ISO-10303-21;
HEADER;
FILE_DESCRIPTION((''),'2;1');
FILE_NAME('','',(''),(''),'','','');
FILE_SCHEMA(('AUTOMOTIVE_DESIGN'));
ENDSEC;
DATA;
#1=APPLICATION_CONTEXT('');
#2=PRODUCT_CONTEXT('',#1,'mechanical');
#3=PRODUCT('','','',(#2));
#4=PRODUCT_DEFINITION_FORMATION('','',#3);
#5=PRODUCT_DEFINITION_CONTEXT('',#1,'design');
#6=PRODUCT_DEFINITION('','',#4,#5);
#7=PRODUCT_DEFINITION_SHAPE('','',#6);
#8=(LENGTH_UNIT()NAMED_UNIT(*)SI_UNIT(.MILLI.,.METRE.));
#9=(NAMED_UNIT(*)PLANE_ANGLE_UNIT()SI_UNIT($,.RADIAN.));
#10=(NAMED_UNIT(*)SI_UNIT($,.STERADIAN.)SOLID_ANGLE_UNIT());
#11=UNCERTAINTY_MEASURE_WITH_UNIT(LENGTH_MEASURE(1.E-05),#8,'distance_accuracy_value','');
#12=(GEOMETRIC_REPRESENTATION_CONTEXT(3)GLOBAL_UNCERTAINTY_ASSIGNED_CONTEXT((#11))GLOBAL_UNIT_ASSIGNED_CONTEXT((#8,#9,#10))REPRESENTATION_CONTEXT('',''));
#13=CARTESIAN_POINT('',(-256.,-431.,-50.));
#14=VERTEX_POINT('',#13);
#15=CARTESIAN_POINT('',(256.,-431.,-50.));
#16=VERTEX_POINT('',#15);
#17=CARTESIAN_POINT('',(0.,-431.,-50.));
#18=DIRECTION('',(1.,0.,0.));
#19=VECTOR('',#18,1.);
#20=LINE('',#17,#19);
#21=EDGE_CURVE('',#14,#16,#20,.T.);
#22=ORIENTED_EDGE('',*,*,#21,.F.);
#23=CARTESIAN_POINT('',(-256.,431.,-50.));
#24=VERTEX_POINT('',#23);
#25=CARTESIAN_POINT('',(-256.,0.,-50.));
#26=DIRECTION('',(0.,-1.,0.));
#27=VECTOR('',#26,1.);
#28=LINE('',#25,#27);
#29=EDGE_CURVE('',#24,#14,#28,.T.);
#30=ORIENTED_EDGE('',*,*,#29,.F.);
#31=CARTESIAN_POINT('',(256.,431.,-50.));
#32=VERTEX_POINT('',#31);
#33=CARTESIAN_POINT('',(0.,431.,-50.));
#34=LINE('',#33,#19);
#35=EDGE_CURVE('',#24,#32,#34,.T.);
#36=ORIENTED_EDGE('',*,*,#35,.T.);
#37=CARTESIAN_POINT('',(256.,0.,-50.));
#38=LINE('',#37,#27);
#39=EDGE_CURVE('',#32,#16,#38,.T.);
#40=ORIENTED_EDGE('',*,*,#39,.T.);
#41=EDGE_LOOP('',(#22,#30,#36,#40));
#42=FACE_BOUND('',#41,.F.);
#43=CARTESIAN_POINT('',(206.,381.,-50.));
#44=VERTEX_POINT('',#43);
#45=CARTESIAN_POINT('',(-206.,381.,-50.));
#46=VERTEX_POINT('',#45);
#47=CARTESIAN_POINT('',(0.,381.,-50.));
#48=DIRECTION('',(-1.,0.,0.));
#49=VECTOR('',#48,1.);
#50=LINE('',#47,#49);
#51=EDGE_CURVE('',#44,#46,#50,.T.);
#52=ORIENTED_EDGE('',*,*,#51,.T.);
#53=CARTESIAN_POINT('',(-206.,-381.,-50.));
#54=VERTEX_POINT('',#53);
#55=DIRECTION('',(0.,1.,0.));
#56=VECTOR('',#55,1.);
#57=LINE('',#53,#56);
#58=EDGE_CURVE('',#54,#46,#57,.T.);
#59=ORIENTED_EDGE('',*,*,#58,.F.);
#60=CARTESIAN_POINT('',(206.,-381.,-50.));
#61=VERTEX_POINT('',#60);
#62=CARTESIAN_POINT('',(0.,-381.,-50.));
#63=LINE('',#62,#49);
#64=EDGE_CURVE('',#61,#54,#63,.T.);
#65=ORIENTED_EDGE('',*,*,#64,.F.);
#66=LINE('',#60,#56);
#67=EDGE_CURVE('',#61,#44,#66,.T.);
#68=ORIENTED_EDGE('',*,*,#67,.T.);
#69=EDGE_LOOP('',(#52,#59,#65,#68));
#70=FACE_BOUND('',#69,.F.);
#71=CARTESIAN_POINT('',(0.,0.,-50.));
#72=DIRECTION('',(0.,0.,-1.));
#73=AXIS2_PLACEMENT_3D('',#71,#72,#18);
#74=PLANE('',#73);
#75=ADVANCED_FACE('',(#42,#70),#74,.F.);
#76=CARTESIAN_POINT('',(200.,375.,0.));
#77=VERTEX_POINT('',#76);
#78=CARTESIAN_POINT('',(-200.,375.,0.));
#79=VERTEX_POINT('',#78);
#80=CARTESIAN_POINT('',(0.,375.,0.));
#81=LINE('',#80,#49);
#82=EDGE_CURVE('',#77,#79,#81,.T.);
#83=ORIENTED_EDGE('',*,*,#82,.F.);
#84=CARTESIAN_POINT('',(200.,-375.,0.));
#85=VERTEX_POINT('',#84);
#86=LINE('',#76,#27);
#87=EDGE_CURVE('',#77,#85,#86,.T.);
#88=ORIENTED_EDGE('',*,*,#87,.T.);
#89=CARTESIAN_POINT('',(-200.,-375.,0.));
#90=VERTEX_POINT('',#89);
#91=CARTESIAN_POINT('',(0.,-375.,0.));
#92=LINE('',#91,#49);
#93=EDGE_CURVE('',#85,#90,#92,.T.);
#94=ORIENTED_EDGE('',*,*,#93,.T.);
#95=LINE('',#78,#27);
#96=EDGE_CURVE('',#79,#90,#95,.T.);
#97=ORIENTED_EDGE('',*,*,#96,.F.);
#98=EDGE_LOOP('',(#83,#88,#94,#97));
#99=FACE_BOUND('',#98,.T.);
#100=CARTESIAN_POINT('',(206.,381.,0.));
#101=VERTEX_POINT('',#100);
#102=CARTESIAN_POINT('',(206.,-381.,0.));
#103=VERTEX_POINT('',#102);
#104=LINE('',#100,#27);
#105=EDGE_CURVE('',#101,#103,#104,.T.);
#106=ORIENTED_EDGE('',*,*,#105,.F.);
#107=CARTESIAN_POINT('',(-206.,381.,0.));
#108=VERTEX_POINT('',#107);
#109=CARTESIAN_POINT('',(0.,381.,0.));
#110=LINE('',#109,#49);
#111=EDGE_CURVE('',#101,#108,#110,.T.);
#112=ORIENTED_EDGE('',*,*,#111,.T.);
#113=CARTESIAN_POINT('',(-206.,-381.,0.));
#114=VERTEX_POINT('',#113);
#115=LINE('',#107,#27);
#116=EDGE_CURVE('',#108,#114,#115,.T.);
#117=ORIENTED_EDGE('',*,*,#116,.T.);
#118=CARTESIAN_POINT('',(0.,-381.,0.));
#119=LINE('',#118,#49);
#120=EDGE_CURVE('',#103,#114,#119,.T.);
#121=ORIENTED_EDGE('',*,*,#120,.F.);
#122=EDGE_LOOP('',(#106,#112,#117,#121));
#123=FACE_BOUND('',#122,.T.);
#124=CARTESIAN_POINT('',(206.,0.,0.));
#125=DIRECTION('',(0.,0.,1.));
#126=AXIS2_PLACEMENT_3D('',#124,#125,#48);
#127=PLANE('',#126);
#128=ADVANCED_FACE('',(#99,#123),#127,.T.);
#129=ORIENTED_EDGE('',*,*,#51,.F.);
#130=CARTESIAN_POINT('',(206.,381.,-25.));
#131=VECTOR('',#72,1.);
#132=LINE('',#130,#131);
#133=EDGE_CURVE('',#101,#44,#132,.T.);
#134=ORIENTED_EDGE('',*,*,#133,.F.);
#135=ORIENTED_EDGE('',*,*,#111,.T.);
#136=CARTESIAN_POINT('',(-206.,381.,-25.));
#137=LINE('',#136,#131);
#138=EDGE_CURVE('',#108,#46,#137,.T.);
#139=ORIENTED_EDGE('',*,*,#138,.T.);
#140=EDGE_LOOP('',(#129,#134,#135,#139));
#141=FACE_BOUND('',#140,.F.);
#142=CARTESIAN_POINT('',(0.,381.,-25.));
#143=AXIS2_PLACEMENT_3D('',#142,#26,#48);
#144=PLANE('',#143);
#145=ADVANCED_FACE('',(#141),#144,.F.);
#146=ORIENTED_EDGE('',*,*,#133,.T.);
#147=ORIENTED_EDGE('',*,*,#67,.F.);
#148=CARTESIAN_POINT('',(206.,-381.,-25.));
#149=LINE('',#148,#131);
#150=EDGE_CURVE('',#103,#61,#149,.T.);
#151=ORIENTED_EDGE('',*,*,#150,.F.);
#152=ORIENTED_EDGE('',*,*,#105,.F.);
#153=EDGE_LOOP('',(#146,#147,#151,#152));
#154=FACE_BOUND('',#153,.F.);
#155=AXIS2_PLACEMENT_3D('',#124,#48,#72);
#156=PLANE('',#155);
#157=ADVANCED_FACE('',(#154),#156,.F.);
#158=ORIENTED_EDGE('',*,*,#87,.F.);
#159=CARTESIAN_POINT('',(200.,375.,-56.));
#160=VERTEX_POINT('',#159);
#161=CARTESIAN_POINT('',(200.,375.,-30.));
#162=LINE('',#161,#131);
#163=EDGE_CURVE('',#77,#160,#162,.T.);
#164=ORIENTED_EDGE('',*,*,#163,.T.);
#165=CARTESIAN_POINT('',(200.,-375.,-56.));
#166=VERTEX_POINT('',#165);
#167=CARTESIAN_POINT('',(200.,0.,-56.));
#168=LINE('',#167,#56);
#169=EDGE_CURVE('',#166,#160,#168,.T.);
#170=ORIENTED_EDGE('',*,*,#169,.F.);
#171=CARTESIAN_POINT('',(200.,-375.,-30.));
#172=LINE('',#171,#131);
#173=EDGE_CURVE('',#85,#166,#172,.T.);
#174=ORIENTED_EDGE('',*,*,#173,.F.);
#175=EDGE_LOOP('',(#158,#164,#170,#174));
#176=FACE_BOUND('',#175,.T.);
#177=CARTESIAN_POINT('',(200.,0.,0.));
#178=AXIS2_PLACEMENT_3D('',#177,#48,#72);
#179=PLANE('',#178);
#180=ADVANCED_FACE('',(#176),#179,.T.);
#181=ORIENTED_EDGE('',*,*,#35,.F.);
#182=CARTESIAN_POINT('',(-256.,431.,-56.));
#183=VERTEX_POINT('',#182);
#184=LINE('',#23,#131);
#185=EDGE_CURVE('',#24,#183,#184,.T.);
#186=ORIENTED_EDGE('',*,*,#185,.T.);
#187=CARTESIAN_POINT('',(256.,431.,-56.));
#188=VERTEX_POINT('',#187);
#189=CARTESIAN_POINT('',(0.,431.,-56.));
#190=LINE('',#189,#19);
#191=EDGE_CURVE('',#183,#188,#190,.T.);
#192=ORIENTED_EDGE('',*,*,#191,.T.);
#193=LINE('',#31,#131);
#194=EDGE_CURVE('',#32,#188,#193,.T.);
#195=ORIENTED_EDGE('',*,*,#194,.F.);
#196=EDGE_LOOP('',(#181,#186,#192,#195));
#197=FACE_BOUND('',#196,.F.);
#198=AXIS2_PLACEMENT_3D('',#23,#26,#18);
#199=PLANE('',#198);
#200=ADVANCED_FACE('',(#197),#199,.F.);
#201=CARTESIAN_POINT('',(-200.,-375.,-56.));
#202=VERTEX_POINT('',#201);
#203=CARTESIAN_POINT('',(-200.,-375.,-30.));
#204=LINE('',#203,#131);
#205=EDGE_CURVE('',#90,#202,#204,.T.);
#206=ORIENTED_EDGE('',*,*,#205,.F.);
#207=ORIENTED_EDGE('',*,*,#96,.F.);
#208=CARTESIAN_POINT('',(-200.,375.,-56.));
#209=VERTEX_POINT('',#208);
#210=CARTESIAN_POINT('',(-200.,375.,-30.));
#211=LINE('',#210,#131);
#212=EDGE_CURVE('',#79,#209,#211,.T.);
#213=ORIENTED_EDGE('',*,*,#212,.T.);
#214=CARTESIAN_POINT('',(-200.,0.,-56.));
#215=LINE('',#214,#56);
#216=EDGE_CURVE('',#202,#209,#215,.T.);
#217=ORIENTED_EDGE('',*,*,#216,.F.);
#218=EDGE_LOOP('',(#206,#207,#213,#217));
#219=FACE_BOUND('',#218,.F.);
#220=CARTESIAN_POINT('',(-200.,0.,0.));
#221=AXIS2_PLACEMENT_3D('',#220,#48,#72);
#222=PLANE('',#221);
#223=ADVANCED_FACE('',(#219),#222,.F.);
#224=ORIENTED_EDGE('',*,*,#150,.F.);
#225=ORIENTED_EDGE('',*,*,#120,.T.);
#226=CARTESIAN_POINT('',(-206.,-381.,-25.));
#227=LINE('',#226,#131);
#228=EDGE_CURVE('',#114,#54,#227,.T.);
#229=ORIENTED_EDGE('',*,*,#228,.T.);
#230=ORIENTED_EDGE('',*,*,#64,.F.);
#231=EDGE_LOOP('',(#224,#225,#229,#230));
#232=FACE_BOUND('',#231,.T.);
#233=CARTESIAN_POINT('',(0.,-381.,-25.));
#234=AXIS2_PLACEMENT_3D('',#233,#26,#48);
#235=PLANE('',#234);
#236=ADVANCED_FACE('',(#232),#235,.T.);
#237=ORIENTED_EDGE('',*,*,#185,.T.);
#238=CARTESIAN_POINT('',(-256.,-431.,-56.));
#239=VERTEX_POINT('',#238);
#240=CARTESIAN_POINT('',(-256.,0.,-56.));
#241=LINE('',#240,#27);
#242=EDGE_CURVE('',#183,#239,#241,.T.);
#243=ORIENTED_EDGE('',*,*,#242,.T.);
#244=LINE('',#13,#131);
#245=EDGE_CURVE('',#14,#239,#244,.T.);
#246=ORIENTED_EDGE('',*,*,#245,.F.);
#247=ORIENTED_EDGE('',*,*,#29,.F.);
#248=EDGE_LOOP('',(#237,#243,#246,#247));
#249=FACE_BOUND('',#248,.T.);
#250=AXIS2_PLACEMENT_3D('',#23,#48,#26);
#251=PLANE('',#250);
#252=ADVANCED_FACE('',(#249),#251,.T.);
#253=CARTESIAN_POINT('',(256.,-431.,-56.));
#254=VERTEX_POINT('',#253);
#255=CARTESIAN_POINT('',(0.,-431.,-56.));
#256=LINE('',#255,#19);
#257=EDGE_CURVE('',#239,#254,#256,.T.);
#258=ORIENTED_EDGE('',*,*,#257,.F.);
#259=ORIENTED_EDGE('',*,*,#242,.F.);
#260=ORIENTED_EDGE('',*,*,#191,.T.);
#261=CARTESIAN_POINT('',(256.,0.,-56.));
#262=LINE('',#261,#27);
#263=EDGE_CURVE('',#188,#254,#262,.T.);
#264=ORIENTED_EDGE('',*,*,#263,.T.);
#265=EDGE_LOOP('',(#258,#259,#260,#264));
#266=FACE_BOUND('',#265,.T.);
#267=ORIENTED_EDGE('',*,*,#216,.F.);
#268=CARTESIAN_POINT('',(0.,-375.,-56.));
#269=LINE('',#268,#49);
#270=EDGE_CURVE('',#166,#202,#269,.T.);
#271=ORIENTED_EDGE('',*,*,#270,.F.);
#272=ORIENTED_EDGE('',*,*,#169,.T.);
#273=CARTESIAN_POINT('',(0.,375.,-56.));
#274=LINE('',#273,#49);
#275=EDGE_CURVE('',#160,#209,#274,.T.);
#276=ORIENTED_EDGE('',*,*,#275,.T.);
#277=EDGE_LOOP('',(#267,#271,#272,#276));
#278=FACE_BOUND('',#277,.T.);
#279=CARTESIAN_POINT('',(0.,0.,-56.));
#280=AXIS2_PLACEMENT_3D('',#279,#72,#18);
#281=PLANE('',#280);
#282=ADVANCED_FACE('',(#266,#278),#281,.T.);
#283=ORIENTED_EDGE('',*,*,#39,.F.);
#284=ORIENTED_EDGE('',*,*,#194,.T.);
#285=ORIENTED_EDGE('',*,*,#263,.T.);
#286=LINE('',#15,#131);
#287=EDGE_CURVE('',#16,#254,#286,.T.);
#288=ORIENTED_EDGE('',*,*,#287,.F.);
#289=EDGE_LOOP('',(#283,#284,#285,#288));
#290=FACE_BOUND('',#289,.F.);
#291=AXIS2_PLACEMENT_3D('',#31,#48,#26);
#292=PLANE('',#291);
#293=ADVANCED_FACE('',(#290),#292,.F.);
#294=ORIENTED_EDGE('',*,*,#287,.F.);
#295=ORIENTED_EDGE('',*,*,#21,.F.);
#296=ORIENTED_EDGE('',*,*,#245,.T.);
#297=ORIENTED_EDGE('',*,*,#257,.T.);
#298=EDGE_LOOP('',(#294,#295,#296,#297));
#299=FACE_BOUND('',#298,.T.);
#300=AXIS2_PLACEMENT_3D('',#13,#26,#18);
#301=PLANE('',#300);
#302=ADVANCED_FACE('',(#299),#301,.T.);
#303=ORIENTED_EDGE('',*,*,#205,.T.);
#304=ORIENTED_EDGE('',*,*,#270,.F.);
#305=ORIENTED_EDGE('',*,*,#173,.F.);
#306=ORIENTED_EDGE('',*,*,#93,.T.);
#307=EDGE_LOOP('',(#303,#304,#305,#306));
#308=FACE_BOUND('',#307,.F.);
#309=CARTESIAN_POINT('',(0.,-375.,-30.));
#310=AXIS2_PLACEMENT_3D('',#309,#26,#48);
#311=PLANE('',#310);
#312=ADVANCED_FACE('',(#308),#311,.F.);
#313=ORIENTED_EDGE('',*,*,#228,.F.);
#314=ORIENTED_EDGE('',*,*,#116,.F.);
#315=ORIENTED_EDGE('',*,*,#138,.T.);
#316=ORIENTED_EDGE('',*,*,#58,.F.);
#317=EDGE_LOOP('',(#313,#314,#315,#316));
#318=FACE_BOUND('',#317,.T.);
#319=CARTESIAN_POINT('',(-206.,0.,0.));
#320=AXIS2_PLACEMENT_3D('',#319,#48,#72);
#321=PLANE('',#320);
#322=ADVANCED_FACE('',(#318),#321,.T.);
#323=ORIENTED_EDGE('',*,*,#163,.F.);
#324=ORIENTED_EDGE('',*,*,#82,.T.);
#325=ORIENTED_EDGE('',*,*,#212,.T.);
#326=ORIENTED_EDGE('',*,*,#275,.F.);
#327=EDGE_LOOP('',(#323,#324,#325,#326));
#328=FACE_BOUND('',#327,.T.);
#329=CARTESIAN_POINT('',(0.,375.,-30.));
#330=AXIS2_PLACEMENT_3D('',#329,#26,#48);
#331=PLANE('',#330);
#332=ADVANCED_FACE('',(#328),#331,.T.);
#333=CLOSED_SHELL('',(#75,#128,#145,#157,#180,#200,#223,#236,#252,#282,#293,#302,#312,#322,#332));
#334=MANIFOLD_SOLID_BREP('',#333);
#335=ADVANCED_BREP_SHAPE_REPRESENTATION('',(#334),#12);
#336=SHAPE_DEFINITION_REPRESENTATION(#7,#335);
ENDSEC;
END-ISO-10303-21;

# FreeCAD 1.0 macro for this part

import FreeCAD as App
import Part
import Sketcher
Q = App.Units.Quantity

doc = App.newDocument("Part")
params = doc.addObject("Spreadsheet::Sheet", "Params")
for row, (alias, value) in enumerate([
    ("sketch1_width", "400 mm"),
    ("sketch1_height", "60 mm"),
    ("pad1_length", "750 mm"),
    ("sketch2_width", "412 mm"),
    ("sketch2_height", "50 mm"),
    ("pad2_length", "762 mm"),
    ("sketch3_width", "512 mm"),
    ("sketch3_height", "862 mm"),
    ("pad3_length", "6 mm"),
], start=1):
    params.set(f"A{row}", alias)
    params.set(f"B{row}", "=" + value)
    params.setAlias(f"B{row}", alias)

body = doc.addObject("PartDesign::Body", "Body")

sketch1 = body.newObject("Sketcher::SketchObject", "Sketch")
sketch1.AttachmentSupport = (doc.getObject("XZ_Plane"), [""])
sketch1.MapMode = "FlatFace"
sketch1.addGeometry([
    Part.LineSegment(App.Vector(-200, 60, 0), App.Vector(-200, 0, 0)),
    Part.LineSegment(App.Vector(-200, 0, 0), App.Vector(200, 0, 0)),
    Part.LineSegment(App.Vector(200, 0, 0), App.Vector(200, 60, 0)),
    Part.LineSegment(App.Vector(200, 60, 0), App.Vector(-200, 60, 0)),
], False)
sketch1.addConstraint([
    Sketcher.Constraint("Coincident", 0, 2, 1, 1),
    Sketcher.Constraint("Coincident", 1, 2, 2, 1),
    Sketcher.Constraint("Coincident", 2, 2, 3, 1),
    Sketcher.Constraint("Coincident", 3, 2, 0, 1),
    Sketcher.Constraint("Vertical", 0),
    Sketcher.Constraint("Horizontal", 1),
    Sketcher.Constraint("Vertical", 2),
    Sketcher.Constraint("Horizontal", 3),
    Sketcher.Constraint("Symmetric", 0, 2, 1, 2, -1, 1),
    Sketcher.Constraint("DistanceX", 1, 1, 1, 2, Q("400 mm")),
    Sketcher.Constraint("DistanceY", 0, 2, 0, 1, Q("60 mm")),
])
sketch1.setExpression("Constraints[9]", "Params.sketch1_width")
sketch1.setExpression("Constraints[10]", "Params.sketch1_height")
pad1 = body.newObject("PartDesign::Pad", "Pad")
pad1.Profile = sketch1
pad1.setExpression("Length", "Params.pad1_length")
pad1.Midplane = True
body2 = doc.addObject("PartDesign::Body", "Body001")

sketch2 = body2.newObject("Sketcher::SketchObject", "Sketch001")
sketch2.AttachmentSupport = (doc.getObject("XZ_Plane001"), [""])
sketch2.MapMode = "FlatFace"
sketch2.addGeometry([
    Part.LineSegment(App.Vector(-206, 50, 0), App.Vector(-206, 0, 0)),
    Part.LineSegment(App.Vector(-206, 0, 0), App.Vector(206, 0, 0)),
    Part.LineSegment(App.Vector(206, 0, 0), App.Vector(206, 50, 0)),
    Part.LineSegment(App.Vector(206, 50, 0), App.Vector(-206, 50, 0)),
], False)
sketch2.addConstraint([
    Sketcher.Constraint("Coincident", 0, 2, 1, 1),
    Sketcher.Constraint("Coincident", 1, 2, 2, 1),
    Sketcher.Constraint("Coincident", 2, 2, 3, 1),
    Sketcher.Constraint("Coincident", 3, 2, 0, 1),
    Sketcher.Constraint("Vertical", 0),
    Sketcher.Constraint("Horizontal", 1),
    Sketcher.Constraint("Vertical", 2),
    Sketcher.Constraint("Horizontal", 3),
    Sketcher.Constraint("Symmetric", 0, 2, 1, 2, -1, 1),
    Sketcher.Constraint("DistanceX", 1, 1, 1, 2, Q("412 mm")),
    Sketcher.Constraint("DistanceY", 0, 2, 0, 1, Q("50 mm")),
])
sketch2.setExpression("Constraints[9]", "Params.sketch2_width")
sketch2.setExpression("Constraints[10]", "Params.sketch2_height")
pad2 = body2.newObject("PartDesign::Pad", "Pad001")
pad2.Profile = sketch2
pad2.setExpression("Length", "Params.pad2_length")
pad2.Midplane = True

sketch3 = body2.newObject("Sketcher::SketchObject", "Sketch002")
sketch3.AttachmentSupport = (doc.getObject("XY_Plane001"), [""])
sketch3.MapMode = "FlatFace"
sketch3.AttachmentOffset = App.Placement(App.Vector(0, 0, 50), App.Rotation())
sketch3.addGeometry([
    Part.LineSegment(App.Vector(256, -431, 0), App.Vector(256, 431, 0)),
    Part.LineSegment(App.Vector(256, 431, 0), App.Vector(-256, 431, 0)),
    Part.LineSegment(App.Vector(-256, 431, 0), App.Vector(-256, -431, 0)),
    Part.LineSegment(App.Vector(-256, -431, 0), App.Vector(256, -431, 0)),
], False)
sketch3.addConstraint([
    Sketcher.Constraint("Coincident", 0, 2, 1, 1),
    Sketcher.Constraint("Coincident", 1, 2, 2, 1),
    Sketcher.Constraint("Coincident", 2, 2, 3, 1),
    Sketcher.Constraint("Coincident", 3, 2, 0, 1),
    Sketcher.Constraint("Vertical", 0),
    Sketcher.Constraint("Horizontal", 1),
    Sketcher.Constraint("Vertical", 2),
    Sketcher.Constraint("Horizontal", 3),
    Sketcher.Constraint("Symmetric", 0, 2, 2, 2, -1, 1),
    Sketcher.Constraint("DistanceX", 1, 2, 1, 1, Q("512 mm")),
    Sketcher.Constraint("DistanceY", 0, 1, 0, 2, Q("862 mm")),
])
sketch3.setExpression("Constraints[9]", "Params.sketch3_width")
sketch3.setExpression("Constraints[10]", "Params.sketch3_height")
pad3 = body2.newObject("PartDesign::Pad", "Pad002")
pad3.Profile = sketch3
pad3.setExpression("Length", "Params.pad3_length")
doc.recompute()

boolean = body2.newObject("PartDesign::Boolean", "Boolean")
boolean.Type = "Cut"
boolean.addObjects([body])
body3 = doc.addObject("PartDesign::Body", "Body002")
doc.recompute()

body2.Placement = App.Placement(App.Vector(0, 0, 0), App.Rotation(App.Vector(0, 1, 0), 180))
boolean2 = body3.newObject("PartDesign::Boolean", "Boolean001")
boolean2.Type = "Fuse"
boolean2.addObjects([body2])

doc.recompute()
